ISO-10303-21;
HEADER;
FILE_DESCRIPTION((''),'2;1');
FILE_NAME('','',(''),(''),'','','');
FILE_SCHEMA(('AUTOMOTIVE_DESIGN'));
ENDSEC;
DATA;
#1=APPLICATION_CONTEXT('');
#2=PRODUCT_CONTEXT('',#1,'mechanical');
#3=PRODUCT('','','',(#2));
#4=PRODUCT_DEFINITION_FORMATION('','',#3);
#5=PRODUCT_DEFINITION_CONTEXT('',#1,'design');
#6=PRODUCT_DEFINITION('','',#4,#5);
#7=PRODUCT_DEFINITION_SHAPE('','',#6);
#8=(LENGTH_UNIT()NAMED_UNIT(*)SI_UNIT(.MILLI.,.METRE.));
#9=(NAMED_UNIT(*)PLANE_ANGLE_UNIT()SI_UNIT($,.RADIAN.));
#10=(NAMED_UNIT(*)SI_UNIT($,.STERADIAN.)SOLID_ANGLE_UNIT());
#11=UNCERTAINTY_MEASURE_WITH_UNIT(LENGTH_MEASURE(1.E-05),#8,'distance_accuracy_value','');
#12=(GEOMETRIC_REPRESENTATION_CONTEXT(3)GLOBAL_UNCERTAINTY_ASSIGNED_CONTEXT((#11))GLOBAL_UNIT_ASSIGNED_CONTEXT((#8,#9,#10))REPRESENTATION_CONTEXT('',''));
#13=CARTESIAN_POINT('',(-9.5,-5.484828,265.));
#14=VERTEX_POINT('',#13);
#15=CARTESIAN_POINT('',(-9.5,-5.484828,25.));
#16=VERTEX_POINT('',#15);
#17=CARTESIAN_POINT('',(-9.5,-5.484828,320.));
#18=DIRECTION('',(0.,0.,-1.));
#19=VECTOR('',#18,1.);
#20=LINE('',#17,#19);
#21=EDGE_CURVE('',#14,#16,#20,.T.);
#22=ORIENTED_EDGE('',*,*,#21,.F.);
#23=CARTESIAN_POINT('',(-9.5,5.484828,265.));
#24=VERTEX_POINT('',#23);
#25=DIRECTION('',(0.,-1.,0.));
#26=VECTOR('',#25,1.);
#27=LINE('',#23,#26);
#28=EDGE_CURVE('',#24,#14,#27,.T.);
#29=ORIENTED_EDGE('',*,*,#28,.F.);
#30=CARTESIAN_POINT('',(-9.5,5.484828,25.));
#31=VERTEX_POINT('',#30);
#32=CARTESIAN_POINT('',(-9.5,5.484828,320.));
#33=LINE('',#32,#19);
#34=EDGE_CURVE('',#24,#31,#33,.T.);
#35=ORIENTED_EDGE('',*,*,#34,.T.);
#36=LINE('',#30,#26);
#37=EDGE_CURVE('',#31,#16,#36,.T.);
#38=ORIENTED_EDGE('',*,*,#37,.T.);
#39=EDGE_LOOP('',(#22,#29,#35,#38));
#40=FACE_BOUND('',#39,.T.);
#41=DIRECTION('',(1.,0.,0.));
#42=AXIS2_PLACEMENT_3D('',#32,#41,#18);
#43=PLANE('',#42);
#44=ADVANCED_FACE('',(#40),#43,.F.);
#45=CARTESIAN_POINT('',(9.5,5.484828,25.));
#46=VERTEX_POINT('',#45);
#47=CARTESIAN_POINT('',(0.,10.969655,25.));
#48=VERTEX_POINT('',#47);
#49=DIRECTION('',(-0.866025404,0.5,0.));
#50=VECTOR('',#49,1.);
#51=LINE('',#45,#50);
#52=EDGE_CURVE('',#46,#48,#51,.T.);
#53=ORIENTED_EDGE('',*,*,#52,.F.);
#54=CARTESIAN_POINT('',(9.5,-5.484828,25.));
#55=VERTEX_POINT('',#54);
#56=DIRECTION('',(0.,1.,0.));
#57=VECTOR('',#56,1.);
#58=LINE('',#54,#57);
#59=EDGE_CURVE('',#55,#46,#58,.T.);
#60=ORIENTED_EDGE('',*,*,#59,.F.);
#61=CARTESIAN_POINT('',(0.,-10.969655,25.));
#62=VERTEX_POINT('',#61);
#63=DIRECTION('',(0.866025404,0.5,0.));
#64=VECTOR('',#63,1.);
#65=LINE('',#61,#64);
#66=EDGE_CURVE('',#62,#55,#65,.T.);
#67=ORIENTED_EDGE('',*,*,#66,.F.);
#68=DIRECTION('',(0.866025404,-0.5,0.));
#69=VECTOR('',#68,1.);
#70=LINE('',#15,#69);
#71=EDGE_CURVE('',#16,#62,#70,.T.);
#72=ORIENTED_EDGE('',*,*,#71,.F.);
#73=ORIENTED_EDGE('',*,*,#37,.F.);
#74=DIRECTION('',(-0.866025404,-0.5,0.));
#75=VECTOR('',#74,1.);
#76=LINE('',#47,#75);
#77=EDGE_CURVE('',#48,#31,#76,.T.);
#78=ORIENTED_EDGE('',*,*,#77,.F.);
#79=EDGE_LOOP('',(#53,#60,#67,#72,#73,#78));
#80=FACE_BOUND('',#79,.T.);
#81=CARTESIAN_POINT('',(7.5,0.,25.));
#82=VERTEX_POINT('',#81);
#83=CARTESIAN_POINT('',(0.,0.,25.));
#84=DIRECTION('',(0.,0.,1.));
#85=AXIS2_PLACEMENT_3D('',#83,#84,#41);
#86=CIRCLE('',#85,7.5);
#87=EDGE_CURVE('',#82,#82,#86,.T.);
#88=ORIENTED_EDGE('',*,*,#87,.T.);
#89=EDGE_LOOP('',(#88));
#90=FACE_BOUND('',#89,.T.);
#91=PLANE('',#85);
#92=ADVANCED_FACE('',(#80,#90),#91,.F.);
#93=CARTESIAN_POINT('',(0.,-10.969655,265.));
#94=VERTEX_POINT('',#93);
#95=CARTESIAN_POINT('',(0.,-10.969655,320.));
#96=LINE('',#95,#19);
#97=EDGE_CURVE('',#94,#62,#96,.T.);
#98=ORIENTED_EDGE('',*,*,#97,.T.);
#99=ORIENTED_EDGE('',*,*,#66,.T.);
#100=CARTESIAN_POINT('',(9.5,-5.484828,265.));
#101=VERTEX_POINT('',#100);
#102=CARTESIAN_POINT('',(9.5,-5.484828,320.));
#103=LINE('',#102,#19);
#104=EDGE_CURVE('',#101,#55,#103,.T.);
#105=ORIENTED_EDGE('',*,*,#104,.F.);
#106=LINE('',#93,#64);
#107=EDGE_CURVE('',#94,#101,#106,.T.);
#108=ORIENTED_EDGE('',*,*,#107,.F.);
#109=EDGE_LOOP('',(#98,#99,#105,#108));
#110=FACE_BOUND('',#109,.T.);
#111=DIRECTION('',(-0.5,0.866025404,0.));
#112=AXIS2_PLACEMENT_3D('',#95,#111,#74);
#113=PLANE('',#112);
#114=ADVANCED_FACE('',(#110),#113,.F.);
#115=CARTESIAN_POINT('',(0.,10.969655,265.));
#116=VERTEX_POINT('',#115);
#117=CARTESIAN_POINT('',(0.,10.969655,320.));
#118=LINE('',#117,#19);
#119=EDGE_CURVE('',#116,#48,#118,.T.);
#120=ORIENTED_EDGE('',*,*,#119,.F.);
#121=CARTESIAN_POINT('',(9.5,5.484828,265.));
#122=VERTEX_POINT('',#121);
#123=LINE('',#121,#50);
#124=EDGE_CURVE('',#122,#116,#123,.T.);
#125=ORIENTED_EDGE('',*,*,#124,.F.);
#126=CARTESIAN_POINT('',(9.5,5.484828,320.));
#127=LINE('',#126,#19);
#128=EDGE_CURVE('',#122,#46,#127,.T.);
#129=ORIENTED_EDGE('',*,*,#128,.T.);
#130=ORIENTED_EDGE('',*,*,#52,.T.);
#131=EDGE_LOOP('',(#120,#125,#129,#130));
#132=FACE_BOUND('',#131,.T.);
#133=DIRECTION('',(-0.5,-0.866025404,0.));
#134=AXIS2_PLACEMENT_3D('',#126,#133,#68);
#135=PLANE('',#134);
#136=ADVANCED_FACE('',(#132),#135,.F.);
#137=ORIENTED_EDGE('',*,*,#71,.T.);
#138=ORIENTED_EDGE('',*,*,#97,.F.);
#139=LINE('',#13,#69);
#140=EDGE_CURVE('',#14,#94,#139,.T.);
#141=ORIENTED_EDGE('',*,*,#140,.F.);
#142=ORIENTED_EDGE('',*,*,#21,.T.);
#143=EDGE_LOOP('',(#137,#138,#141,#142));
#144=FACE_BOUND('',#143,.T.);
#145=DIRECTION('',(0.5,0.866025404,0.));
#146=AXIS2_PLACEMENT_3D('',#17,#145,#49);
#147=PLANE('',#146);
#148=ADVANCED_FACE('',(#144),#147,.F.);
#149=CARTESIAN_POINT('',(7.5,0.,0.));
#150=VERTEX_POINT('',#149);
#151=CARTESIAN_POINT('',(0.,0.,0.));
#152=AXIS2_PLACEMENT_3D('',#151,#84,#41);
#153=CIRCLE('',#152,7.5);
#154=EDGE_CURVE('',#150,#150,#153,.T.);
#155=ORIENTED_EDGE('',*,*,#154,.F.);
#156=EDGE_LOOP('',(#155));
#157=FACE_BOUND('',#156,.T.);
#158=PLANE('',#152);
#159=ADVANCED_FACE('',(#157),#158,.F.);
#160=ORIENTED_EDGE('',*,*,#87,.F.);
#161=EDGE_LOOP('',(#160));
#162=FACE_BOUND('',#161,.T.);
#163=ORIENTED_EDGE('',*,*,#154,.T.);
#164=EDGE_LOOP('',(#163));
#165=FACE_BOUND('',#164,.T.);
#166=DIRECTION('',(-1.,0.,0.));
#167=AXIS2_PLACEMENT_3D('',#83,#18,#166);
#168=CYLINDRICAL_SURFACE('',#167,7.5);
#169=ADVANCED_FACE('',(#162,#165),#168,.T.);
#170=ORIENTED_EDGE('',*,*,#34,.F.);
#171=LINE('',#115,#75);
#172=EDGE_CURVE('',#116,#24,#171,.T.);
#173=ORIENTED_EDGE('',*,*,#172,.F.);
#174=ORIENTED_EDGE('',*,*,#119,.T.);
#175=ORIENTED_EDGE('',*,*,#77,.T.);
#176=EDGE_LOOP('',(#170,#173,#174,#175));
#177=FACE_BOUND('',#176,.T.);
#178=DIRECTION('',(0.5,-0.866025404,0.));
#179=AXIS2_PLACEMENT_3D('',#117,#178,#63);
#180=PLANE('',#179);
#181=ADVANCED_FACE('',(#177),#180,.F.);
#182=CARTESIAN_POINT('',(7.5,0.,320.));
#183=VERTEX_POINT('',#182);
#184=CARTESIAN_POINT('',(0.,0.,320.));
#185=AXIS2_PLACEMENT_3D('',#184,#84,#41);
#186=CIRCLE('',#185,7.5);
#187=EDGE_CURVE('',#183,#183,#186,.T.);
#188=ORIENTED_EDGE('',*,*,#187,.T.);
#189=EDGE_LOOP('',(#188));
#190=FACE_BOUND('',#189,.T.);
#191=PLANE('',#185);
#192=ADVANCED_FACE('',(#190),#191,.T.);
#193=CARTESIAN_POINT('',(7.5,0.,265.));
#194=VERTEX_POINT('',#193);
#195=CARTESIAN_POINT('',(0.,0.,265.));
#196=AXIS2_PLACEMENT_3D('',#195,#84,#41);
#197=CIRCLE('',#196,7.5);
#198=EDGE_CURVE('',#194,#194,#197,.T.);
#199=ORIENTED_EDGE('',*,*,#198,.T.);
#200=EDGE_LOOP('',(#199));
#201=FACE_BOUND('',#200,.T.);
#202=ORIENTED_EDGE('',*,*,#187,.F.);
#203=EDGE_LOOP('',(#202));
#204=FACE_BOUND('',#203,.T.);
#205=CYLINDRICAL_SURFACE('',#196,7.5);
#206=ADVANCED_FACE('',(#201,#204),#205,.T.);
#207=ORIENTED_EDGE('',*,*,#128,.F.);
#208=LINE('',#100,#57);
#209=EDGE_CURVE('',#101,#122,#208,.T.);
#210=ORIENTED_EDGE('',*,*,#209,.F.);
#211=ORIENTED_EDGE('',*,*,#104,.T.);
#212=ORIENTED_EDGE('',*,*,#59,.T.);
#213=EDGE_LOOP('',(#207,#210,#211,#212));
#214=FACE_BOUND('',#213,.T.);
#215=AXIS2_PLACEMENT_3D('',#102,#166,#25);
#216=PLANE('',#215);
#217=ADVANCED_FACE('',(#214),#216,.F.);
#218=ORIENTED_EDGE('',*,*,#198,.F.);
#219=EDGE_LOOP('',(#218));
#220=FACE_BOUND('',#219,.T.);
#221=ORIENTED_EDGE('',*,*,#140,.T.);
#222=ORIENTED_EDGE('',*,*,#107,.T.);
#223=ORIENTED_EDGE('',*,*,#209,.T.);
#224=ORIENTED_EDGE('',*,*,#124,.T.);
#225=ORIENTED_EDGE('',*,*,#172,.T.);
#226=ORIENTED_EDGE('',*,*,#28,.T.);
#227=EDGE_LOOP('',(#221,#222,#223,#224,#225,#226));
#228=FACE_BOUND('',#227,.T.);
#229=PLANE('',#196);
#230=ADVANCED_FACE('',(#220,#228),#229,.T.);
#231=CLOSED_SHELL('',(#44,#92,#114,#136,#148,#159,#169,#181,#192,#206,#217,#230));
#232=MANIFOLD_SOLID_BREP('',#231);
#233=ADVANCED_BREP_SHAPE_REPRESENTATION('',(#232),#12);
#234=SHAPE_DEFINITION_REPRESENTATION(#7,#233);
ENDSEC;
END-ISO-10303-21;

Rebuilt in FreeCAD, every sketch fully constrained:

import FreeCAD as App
import Part
import Sketcher

V = App.Vector
Q = App.Units.Quantity


def add_polygon(sketch, points):
    """Adds a closed chain of lines whose ends are joined by coincident constraints."""
    first, n = sketch.GeometryCount, len(points)
    for a, b in zip(points, points[1:] + points[:1]):
        sketch.addGeometry(Part.LineSegment(App.Vector(*a, 0), App.Vector(*b, 0)), False)
    for i in range(n):
        sketch.addConstraint(Sketcher.Constraint("Coincident", first + i, 2, first + (i + 1) % n, 1))

doc = App.newDocument("Part")
params = doc.addObject("Spreadsheet::Sheet", "Params")
for row, (alias, value) in enumerate([
    ("pad1_length", "320 mm"),
    ("sketch2_diameter", "15 mm"),
    ("pocket1_length", "55 mm"),
    ("sketch3_diameter", "15 mm"),
    ("pocket2_length", "25 mm"),
], start=1):
    params.set(f"A{row}", alias)
    params.set(f"B{row}", "=" + value)
    params.setAlias(f"B{row}", alias)

body = doc.addObject("PartDesign::Body", "Body")

sketch1 = body.newObject("Sketcher::SketchObject", "Sketch")
sketch1.AttachmentSupport = (doc.getObject("XY_Plane"), [""])
sketch1.MapMode = "FlatFace"
add_polygon(sketch1, [(10, -5), (10, 5), (0, 11), (-10, 5), (-10, -5), (0, -11)])
sketch1.addConstraint([
    Sketcher.Constraint("Vertical", 0),
    Sketcher.Constraint("Vertical", 3),
    Sketcher.Constraint("Symmetric", 0, 2, 3, 2, -1, 1),
    Sketcher.Constraint("Symmetric", 1, 2, 4, 2, -1, 1),
    Sketcher.Constraint("PointOnObject", 1, 2, -2),
    Sketcher.Constraint("Parallel", 2, 5),
    Sketcher.Constraint("Horizontal", 0, 2, 2, 2),
    Sketcher.Constraint("Angle", 1, Q("150 deg")),
    Sketcher.Constraint("DistanceX", 2, 2, 0, 2, 19.0),
    Sketcher.Constraint("DistanceY", 0, 1, 0, 2, 10.969655),
])
pad1 = body.newObject("PartDesign::Pad", "Pad")
pad1.Profile = sketch1
pad1.setExpression("Length", "Params.pad1_length")

sketch2 = body.newObject("Sketcher::SketchObject", "Sketch001")
sketch2.AttachmentSupport = (doc.getObject("XY_Plane"), [""])
sketch2.MapMode = "FlatFace"
sketch2.AttachmentOffset = App.Placement(V(0, 0, 320), App.Rotation())
sketch2.addGeometry([
    Part.Circle(V(0, 0, 0), V(0, 0, 1), 11),
    Part.Circle(V(0, 0, 0), V(0, 0, 1), 8),
], False)
sketch2.addConstraint([
    Sketcher.Constraint("Coincident", 0, 3, -1, 1),
    Sketcher.Constraint("Coincident", 1, 3, -1, 1),
    Sketcher.Constraint("Diameter", 1, 15.0),
    Sketcher.Constraint("Diameter", 0, 21.93931),
])
sketch2.setExpression("Constraints[2]", "Params.sketch2_diameter")
pocket1 = body.newObject("PartDesign::Pocket", "Pocket")
pocket1.Profile = sketch2
pocket1.setExpression("Length", "Params.pocket1_length")

sketch3 = body.newObject("Sketcher::SketchObject", "Sketch002")
sketch3.AttachmentSupport = (doc.getObject("XY_Plane"), [""])
sketch3.MapMode = "FlatFace"
sketch3.AttachmentOffset = App.Placement(V(0, 0, 25), App.Rotation())
sketch3.addGeometry([
    Part.Circle(V(0, 0, 0), V(0, 0, 1), 11),
    Part.Circle(V(0, 0, 0), V(0, 0, 1), 8),
], False)
sketch3.addConstraint([
    Sketcher.Constraint("Coincident", 0, 3, -1, 1),
    Sketcher.Constraint("Coincident", 1, 3, -1, 1),
    Sketcher.Constraint("Diameter", 1, 15.0),
    Sketcher.Constraint("Diameter", 0, 21.93931),
])
sketch3.setExpression("Constraints[2]", "Params.sketch3_diameter")
pocket2 = body.newObject("PartDesign::Pocket", "Pocket001")
pocket2.Profile = sketch3
pocket2.setExpression("Length", "Params.pocket2_length")

doc.recompute()
